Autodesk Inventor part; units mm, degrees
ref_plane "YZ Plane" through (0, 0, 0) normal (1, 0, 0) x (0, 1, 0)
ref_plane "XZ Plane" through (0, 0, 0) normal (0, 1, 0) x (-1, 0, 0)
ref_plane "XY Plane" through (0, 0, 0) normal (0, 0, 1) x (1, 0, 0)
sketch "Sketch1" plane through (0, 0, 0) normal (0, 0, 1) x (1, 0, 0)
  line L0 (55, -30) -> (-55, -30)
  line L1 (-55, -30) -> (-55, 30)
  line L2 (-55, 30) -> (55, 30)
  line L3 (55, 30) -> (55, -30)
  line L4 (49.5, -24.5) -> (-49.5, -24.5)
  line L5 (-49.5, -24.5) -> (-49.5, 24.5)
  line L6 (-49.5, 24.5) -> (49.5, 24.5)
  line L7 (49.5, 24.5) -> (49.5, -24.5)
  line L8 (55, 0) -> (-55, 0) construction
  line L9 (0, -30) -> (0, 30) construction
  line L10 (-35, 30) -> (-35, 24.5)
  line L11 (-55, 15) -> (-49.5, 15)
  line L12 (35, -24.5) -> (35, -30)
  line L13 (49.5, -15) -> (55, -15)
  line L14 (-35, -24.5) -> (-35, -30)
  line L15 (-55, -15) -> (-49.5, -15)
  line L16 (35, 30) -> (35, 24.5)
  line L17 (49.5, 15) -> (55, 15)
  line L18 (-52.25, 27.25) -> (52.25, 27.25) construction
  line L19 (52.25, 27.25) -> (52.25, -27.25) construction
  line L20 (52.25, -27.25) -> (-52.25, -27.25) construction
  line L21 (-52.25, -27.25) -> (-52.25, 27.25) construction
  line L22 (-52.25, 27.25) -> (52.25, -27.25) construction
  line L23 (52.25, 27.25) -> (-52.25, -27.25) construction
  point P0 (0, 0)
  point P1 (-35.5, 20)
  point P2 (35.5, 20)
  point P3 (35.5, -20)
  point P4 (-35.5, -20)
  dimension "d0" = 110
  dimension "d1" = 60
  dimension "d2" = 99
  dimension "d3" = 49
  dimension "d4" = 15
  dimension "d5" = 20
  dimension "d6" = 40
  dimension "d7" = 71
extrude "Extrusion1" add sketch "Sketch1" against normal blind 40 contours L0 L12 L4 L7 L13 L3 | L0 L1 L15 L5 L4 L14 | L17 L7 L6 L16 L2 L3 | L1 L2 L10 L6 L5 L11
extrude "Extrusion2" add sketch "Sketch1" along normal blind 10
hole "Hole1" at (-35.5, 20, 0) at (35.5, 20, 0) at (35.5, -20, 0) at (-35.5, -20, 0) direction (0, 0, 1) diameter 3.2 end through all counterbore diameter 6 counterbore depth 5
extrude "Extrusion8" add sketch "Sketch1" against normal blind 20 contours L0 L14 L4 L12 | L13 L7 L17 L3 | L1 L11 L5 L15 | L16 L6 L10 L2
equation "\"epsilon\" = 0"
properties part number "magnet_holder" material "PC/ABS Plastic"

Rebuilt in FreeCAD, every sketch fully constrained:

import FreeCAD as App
import Part
import Sketcher
from FreeCAD import Vector
Q = App.Units.Quantity


def add_polygon(sketch, points):
    """Adds a closed chain of lines whose ends are joined by coincident constraints."""
    first, n = sketch.GeometryCount, len(points)
    for a, b in zip(points, points[1:] + points[:1]):
        sketch.addGeometry(Part.LineSegment(App.Vector(*a, 0), App.Vector(*b, 0)), False)
    for i in range(n):
        sketch.addConstraint(Sketcher.Constraint("Coincident", first + i, 2, first + (i + 1) % n, 1))

doc = App.newDocument("Part")
params = doc.addObject("Spreadsheet::Sheet", "Params")
for row, (alias, value) in enumerate([
    ("sketch1_width", "20 mm"),
    ("sketch1_height", "15 mm"),
    ("pad1_length", "40 mm"),
    ("sketch2_width", "110 mm"),
    ("sketch2_height", "60 mm"),
    ("pad2_length", "10 mm"),
    ("sketch3_diameter", "3.2 mm"),
    ("hole_diameter", "3.2 mm"),
    ("hole_cbore_diameter", "6 mm"),
    ("hole_cbore_depth", "5 mm"),
    ("sketch4_width", "70 mm"),
    ("sketch4_width2", "5.5 mm"),
    ("pad3_length", "20 mm"),
], start=1):
    params.set(f"A{row}", alias)
    params.set(f"B{row}", "=" + value)
    params.setAlias(f"B{row}", alias)

body = doc.addObject("PartDesign::Body", "Body")
body.AllowCompound = True

# Sketch on XY plane
sketch1 = body.newObject("Sketcher::SketchObject", "Sketch")
sketch1.AttachmentSupport = (doc.getObject("XY_Plane"), [""])
sketch1.MapMode = "FlatFace"
add_polygon(sketch1, [(35, -30), (55, -30), (55, -15), (50, -15), (50, -24), (35, -24)])  # lines 0-5
add_polygon(sketch1, [(-55, -30), (-35, -30), (-35, -24), (-50, -24), (-50, -15), (-55, -15)])  # lines 6-11
add_polygon(sketch1, [(50, 15), (55, 15), (55, 30), (35, 30), (35, 24), (50, 24)])  # lines 12-17
add_polygon(sketch1, [(-55, 30), (-55, 15), (-50, 15), (-50, 24), (-35, 24), (-35, 30)])  # lines 18-23
sketch1.addConstraint(Sketcher.Constraint("Horizontal", 0))
sketch1.addConstraint(Sketcher.Constraint("Vertical", 1))
sketch1.addConstraint(Sketcher.Constraint("Horizontal", 2))
sketch1.addConstraint(Sketcher.Constraint("Vertical", 3))
sketch1.addConstraint(Sketcher.Constraint("Horizontal", 4))
sketch1.addConstraint(Sketcher.Constraint("Vertical", 5))
sketch1.addConstraint(Sketcher.Constraint("Horizontal", 6))
sketch1.addConstraint(Sketcher.Constraint("Vertical", 7))
sketch1.addConstraint(Sketcher.Constraint("Horizontal", 8))
sketch1.addConstraint(Sketcher.Constraint("Vertical", 9))
sketch1.addConstraint(Sketcher.Constraint("Horizontal", 10))
sketch1.addConstraint(Sketcher.Constraint("Vertical", 11))
sketch1.addConstraint(Sketcher.Constraint("Horizontal", 12))
sketch1.addConstraint(Sketcher.Constraint("Vertical", 13))
sketch1.addConstraint(Sketcher.Constraint("Horizontal", 14))
sketch1.addConstraint(Sketcher.Constraint("Vertical", 15))
sketch1.addConstraint(Sketcher.Constraint("Horizontal", 16))
sketch1.addConstraint(Sketcher.Constraint("Vertical", 17))
sketch1.addConstraint(Sketcher.Constraint("Vertical", 18))
sketch1.addConstraint(Sketcher.Constraint("Horizontal", 19))
sketch1.addConstraint(Sketcher.Constraint("Vertical", 20))
sketch1.addConstraint(Sketcher.Constraint("Horizontal", 21))
sketch1.addConstraint(Sketcher.Constraint("Vertical", 22))
sketch1.addConstraint(Sketcher.Constraint("Horizontal", 23))
sketch1.addConstraint(Sketcher.Constraint("Symmetric", 10, 2, 12, 2, -1, 1))
sketch1.addConstraint(Sketcher.Constraint("Symmetric", 6, 2, 14, 2, -1, 1))
sketch1.addConstraint(Sketcher.Constraint("Symmetric", 8, 2, 16, 2, -1, 1))
sketch1.addConstraint(Sketcher.Constraint("Symmetric", 1, 2, 18, 2, -1, 1))
sketch1.addConstraint(Sketcher.Constraint("Symmetric", 3, 2, 20, 2, -1, 1))
sketch1.addConstraint(Sketcher.Constraint("Symmetric", 5, 2, 22, 2, -1, 1))
sketch1.addConstraint(Sketcher.Constraint("Symmetric", 5, 2, 6, 2, -2))
sketch1.addConstraint(Sketcher.Constraint("Symmetric", 3, 2, 8, 2, -2))
sketch1.addConstraint(Sketcher.Constraint("Symmetric", 1, 2, 10, 2, -2))
sketch1.addConstraint(Sketcher.Constraint("Equal", 19, 5))
sketch1.addConstraint(Sketcher.Constraint("DistanceX", 0, 1, 0, 2, Q("20 mm")))
sketch1.addConstraint(Sketcher.Constraint("DistanceY", 1, 1, 1, 2, Q("15 mm")))
sketch1.addConstraint(Sketcher.Constraint("DistanceY", 1, 2, -1, 1, Q("15 mm")))
sketch1.addConstraint(Sketcher.Constraint("DistanceX", 8, 2, 3, 2, Q("99 mm")))
sketch1.addConstraint(Sketcher.Constraint("DistanceY", 8, 2, 20, 2, Q("49 mm")))
sketch1.setExpression("Constraints[58]", "Params.sketch1_width")
sketch1.setExpression("Constraints[59]", "Params.sketch1_height")
pad1 = body.newObject("PartDesign::Pad", "Pad")
pad1.Profile = sketch1
pad1.setExpression("Length", "Params.pad1_length")
pad1.Reversed = True

# Sketch on XY plane
sketch2 = body.newObject("Sketcher::SketchObject", "Sketch001")
sketch2.AttachmentSupport = (doc.getObject("XY_Plane"), [""])
sketch2.MapMode = "FlatFace"
add_polygon(sketch2, [(55, -30), (55, 30), (-55, 30), (-55, -30)])  # lines 0-3
sketch2.addConstraint(Sketcher.Constraint("Vertical", 0))
sketch2.addConstraint(Sketcher.Constraint("Horizontal", 1))
sketch2.addConstraint(Sketcher.Constraint("Vertical", 2))
sketch2.addConstraint(Sketcher.Constraint("Horizontal", 3))
sketch2.addConstraint(Sketcher.Constraint("Symmetric", 0, 2, 2, 2, -1, 1))
sketch2.addConstraint(Sketcher.Constraint("DistanceX", 1, 2, 1, 1, Q("110 mm")))
sketch2.addConstraint(Sketcher.Constraint("DistanceY", 0, 1, 0, 2, Q("60 mm")))
sketch2.setExpression("Constraints[9]", "Params.sketch2_width")
sketch2.setExpression("Constraints[10]", "Params.sketch2_height")
pad2 = body.newObject("PartDesign::Pad", "Pad001")
pad2.Profile = sketch2
pad2.setExpression("Length", "Params.pad2_length")

# Sketch on XY plane
sketch3 = body.newObject("Sketcher::SketchObject", "Sketch002")
sketch3.AttachmentSupport = (doc.getObject("XY_Plane"), [""])
sketch3.MapMode = "FlatFace"
sketch3.addGeometry(Part.Circle(Vector(-35.5, 20, 0), Vector(0, 0, 1), 1.6), False)
sketch3.addGeometry(Part.Circle(Vector(35.5, 20, 0), Vector(0, 0, 1), 1.6), False)
sketch3.addGeometry(Part.Circle(Vector(35.5, -20, 0), Vector(0, 0, 1), 1.6), False)
sketch3.addGeometry(Part.Circle(Vector(-35.5, -20, 0), Vector(0, 0, 1), 1.6), False)
sketch3.addConstraint(Sketcher.Constraint("Equal", 0, 1))
sketch3.addConstraint(Sketcher.Constraint("Equal", 1, 2))
sketch3.addConstraint(Sketcher.Constraint("Equal", 2, 3))
sketch3.addConstraint(Sketcher.Constraint("Symmetric", 0, 3, 2, 3, -1, 1))
sketch3.addConstraint(Sketcher.Constraint("Symmetric", 1, 3, 3, 3, -1, 1))
sketch3.addConstraint(Sketcher.Constraint("Symmetric", 0, 3, 1, 3, -2))
sketch3.addConstraint(Sketcher.Constraint("Diameter", 0, Q("3.2 mm")))
sketch3.addConstraint(Sketcher.Constraint("DistanceY", -1, 1, 0, 3, Q("20 mm")))
sketch3.addConstraint(Sketcher.Constraint("DistanceX", 0, 3, 1, 3, Q("71 mm")))
sketch3.setExpression("Constraints[6]", "Params.sketch3_diameter")
doc.recompute()
hole = body.newObject("PartDesign::Hole", "Hole")
hole.Profile = sketch3
hole.ThreadType = "None"
hole.setExpression("Diameter", "Params.hole_diameter")
hole.DepthType = "ThroughAll"
hole.HoleCutType = "Counterbore"
hole.setExpression("HoleCutDiameter", "Params.hole_cbore_diameter")
hole.setExpression("HoleCutDepth", "Params.hole_cbore_depth")
hole.Reversed = True

# Sketch on XY plane
sketch4 = body.newObject("Sketcher::SketchObject", "Sketch003")
sketch4.AttachmentSupport = (doc.getObject("XY_Plane"), [""])
sketch4.MapMode = "FlatFace"
add_polygon(sketch4, [(-35, -30), (35, -30), (35, -24), (-35, -24)])  # lines 0-3
add_polygon(sketch4, [(50, -15), (55, -15), (55, 15), (50, 15)])  # lines 4-7
add_polygon(sketch4, [(-55, 15), (-55, -15), (-50, -15), (-50, 15)])  # lines 8-11
add_polygon(sketch4, [(35, 24), (35, 30), (-35, 30), (-35, 24)])  # lines 12-15
sketch4.addConstraint(Sketcher.Constraint("Horizontal", 0))
sketch4.addConstraint(Sketcher.Constraint("Vertical", 1))
sketch4.addConstraint(Sketcher.Constraint("Horizontal", 2))
sketch4.addConstraint(Sketcher.Constraint("Vertical", 3))
sketch4.addConstraint(Sketcher.Constraint("Horizontal", 4))
sketch4.addConstraint(Sketcher.Constraint("Vertical", 5))
sketch4.addConstraint(Sketcher.Constraint("Horizontal", 6))
sketch4.addConstraint(Sketcher.Constraint("Vertical", 7))
sketch4.addConstraint(Sketcher.Constraint("Vertical", 8))
sketch4.addConstraint(Sketcher.Constraint("Horizontal", 9))
sketch4.addConstraint(Sketcher.Constraint("Vertical", 10))
sketch4.addConstraint(Sketcher.Constraint("Horizontal", 11))
sketch4.addConstraint(Sketcher.Constraint("Vertical", 12))
sketch4.addConstraint(Sketcher.Constraint("Horizontal", 13))
sketch4.addConstraint(Sketcher.Constraint("Vertical", 14))
sketch4.addConstraint(Sketcher.Constraint("Horizontal", 15))
sketch4.addConstraint(Sketcher.Constraint("Symmetric", 5, 2, 8, 2, -1, 1))
sketch4.addConstraint(Sketcher.Constraint("Symmetric", 7, 2, 10, 2, -1, 1))
sketch4.addConstraint(Sketcher.Constraint("Symmetric", 3, 2, 12, 2, -1, 1))
sketch4.addConstraint(Sketcher.Constraint("Symmetric", 1, 2, 14, 2, -1, 1))
sketch4.addConstraint(Sketcher.Constraint("Horizontal", 7, 2, 8, 2))
sketch4.addConstraint(Sketcher.Constraint("Vertical", 1, 2, 12, 2))
sketch4.addConstraint(Sketcher.Constraint("Equal", 11, 1))
sketch4.addConstraint(Sketcher.Constraint("DistanceY", 4, 2, -1, 1, Q("15 mm")))
sketch4.addConstraint(Sketcher.Constraint("DistanceX", 1, 2, 4, 2, Q("20 mm")))
sketch4.addConstraint(Sketcher.Constraint("DistanceY", 0, 2, 4, 2, Q("15 mm")))
sketch4.addConstraint(Sketcher.Constraint("DistanceX", 0, 1, 0, 2, Q("70 mm")))
sketch4.addConstraint(Sketcher.Constraint("DistanceX", 4, 1, 4, 2, Q("5.5 mm")))
sketch4.setExpression("Constraints[42]", "Params.sketch4_width")
sketch4.setExpression("Constraints[43]", "Params.sketch4_width2")
pad3 = body.newObject("PartDesign::Pad", "Pad002")
pad3.Profile = sketch4
pad3.setExpression("Length", "Params.pad3_length")
pad3.Reversed = True

doc.recompute()
